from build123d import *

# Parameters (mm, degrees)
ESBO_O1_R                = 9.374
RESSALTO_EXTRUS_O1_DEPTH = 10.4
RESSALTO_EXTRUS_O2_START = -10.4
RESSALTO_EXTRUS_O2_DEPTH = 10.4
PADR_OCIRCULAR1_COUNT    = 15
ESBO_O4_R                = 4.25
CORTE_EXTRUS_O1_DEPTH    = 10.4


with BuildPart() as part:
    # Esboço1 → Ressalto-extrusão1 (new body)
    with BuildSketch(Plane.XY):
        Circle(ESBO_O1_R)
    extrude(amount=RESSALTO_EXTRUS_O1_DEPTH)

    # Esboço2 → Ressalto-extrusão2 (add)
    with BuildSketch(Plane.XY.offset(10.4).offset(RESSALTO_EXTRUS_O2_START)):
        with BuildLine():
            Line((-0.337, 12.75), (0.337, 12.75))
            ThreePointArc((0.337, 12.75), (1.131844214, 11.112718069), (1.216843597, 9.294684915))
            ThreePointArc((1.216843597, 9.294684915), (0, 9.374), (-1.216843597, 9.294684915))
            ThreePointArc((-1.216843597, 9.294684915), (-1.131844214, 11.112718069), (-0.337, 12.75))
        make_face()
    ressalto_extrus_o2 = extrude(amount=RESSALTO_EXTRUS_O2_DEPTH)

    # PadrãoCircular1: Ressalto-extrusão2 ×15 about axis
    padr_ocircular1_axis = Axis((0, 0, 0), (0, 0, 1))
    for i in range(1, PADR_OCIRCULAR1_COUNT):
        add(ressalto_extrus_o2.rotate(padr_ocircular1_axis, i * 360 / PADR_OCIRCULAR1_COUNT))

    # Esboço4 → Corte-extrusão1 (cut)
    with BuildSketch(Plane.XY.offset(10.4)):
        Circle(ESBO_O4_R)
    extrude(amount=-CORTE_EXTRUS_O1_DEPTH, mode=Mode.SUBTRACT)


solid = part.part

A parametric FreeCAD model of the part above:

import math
import FreeCAD as App
import Part
import Sketcher
from FreeCAD import Vector

doc = App.newDocument("Part")
body = doc.addObject("PartDesign::Body", "Body")

# Sketch on XY plane
sketch1 = body.newObject("Sketcher::SketchObject", "Sketch")
sketch1.AttachmentSupport = (doc.getObject("XY_Plane"), [""])
sketch1.MapMode = "FlatFace"
sketch1.addGeometry(Part.Circle(Vector(0, 0, 0), Vector(0, 0, 1), 9), False)
sketch1.addConstraint(Sketcher.Constraint("Coincident", 0, 3, -1, 1))
sketch1.addConstraint(Sketcher.Constraint("Diameter", 0, 18.748))
pad1 = body.newObject("PartDesign::Pad", "Pad")
pad1.Profile = sketch1
pad1.Length = 10.4

# Sketch on XY plane
sketch2 = body.newObject("Sketcher::SketchObject", "Sketch001")
sketch2.AttachmentSupport = (doc.getObject("XY_Plane"), [""])
sketch2.MapMode = "FlatFace"
sketch2.addGeometry(Part.LineSegment(Vector(0.3, 12.8, 0), Vector(-0.3, 12.8, 0)), False)
sketch2.addGeometry(Part.ArcOfCircle(Part.Circle(Vector(3.3, 10, 0), Vector(0, 0, 1), 4.5), math.radians(142), math.radians(189)), False)
sketch2.addGeometry(Part.ArcOfCircle(Part.Circle(Vector(0, 0, 0), Vector(0, 0, 1), 9.4), math.radians(82.54), math.radians(97.46)), False)
sketch2.addGeometry(Part.ArcOfCircle(Part.Circle(Vector(-3.3, 10, 0), Vector(0, 0, 1), 4.5), math.radians(-9), math.radians(38)), False)
sketch2.addConstraint(Sketcher.Constraint("Coincident", 0, 2, 1, 1))
sketch2.addConstraint(Sketcher.Constraint("Coincident", 1, 2, 2, 2))
sketch2.addConstraint(Sketcher.Constraint("Coincident", 2, 1, 3, 1))
sketch2.addConstraint(Sketcher.Constraint("Coincident", 3, 2, 0, 1))
sketch2.addConstraint(Sketcher.Constraint("Horizontal", 0))
sketch2.addConstraint(Sketcher.Constraint("Coincident", 2, 3, -1, 1))
sketch2.addConstraint(Sketcher.Constraint("Equal", 1, 3))
sketch2.addConstraint(Sketcher.Constraint("Symmetric", 1, 3, 3, 3, -2))
sketch2.addConstraint(Sketcher.Constraint("Radius", 2, 9.374))
sketch2.addConstraint(Sketcher.Constraint("DistanceX", 0, 2, 0, 1, 0.674))
sketch2.addConstraint(Sketcher.Constraint("DistanceY", -1, 1, 0, 2, 12.75))
sketch2.addConstraint(Sketcher.Constraint("Radius", 1, 4.522166))
sketch2.addConstraint(Sketcher.Constraint("DistanceX", -1, 1, 1, 3, 3.25048))
pad2 = body.newObject("PartDesign::Pad", "Pad001")
pad2.Profile = sketch2
pad2.Length = 10.4
doc.recompute()

polarpattern = body.newObject("PartDesign::PolarPattern", "PolarPattern")
polarpattern.Originals = [pad2]
polarpattern.Axis = (doc.getObject("Z_Axis"), [""])
polarpattern.Angle = 360
polarpattern.Occurrences = 15
body.Tip = polarpattern

# Sketch on XY plane
sketch3 = body.newObject("Sketcher::SketchObject", "Sketch002")
sketch3.AttachmentSupport = (doc.getObject("XY_Plane"), [""])
sketch3.MapMode = "FlatFace"
sketch3.AttachmentOffset = App.Placement(Vector(0, 0, 10.4), App.Rotation())
sketch3.addGeometry(Part.Circle(Vector(0, 0, 0), Vector(0, 0, 1), 4.2), False)
sketch3.addConstraint(Sketcher.Constraint("Coincident", 0, 3, -1, 1))
sketch3.addConstraint(Sketcher.Constraint("Diameter", 0, 8.5))
pocket1 = body.newObject("PartDesign::Pocket", "Pocket")
pocket1.Profile = sketch3
pocket1.Length = 10.4

doc.recompute()
